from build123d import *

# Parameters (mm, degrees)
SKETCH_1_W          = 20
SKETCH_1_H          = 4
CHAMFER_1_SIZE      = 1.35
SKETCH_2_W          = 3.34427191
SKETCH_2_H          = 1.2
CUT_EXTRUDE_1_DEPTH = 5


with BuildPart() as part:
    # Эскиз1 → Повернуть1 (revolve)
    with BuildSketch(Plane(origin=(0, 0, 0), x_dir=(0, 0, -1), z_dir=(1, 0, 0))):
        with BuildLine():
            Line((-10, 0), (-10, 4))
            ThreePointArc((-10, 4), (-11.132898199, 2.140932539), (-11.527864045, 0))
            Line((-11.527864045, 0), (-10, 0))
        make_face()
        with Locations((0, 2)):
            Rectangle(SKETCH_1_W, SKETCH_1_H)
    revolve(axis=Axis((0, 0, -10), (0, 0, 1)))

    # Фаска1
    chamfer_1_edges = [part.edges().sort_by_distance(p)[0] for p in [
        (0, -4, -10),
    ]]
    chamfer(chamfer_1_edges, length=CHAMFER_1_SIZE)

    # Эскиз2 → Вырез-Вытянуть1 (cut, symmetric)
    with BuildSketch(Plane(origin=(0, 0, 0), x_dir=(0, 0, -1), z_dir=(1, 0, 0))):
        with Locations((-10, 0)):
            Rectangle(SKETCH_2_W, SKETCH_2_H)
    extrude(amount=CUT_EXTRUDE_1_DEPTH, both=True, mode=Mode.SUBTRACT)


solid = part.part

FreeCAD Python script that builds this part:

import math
import FreeCAD as App
import Part
import Sketcher
from FreeCAD import Vector


def edges_at(feature, points):
    """Names of the edges that pass closest to the given points."""
    edges = feature.Shape.Edges
    near = lambda p: min(range(len(edges)), key=lambda i: edges[i].distToShape(Part.Vertex(*p))[0])
    return sorted({f"Edge{near(p) + 1}" for p in points})

doc = App.newDocument("Part")
params = doc.addObject("Spreadsheet::Sheet", "Params")
for row, (alias, value) in enumerate([
    ("sketch1_radius", "6 mm"),
    ("sketch1_width", "4 mm"),
    ("sketch1_height", "20 mm"),
    ("revolution_angle", "360 deg"),
    ("chamfer_size", "1.35 mm"),
    ("sketch2_width", "1.2 mm"),
    ("pocket1_length", "10 mm"),
], start=1):
    params.set(f"A{row}", alias)
    params.set(f"B{row}", "=" + value)
    params.setAlias(f"B{row}", alias)

body = doc.addObject("PartDesign::Body", "Body")

# Sketch on YZ plane
sketch1 = body.newObject("Sketcher::SketchObject", "Sketch")
sketch1.AttachmentSupport = (doc.getObject("YZ_Plane"), [""])
sketch1.MapMode = "FlatFace"
sketch1.addGeometry([
    Part.ArcOfCircle(Part.Circle(Vector(0, 5.5, 0), Vector(0, 0, 1), 6), math.radians(48), math.radians(90)),
    Part.LineSegment(Vector(0, 11.5, 0), Vector(0, -10, 0)),
    Part.LineSegment(Vector(0, -10, 0), Vector(4, -10, 0)),
    Part.LineSegment(Vector(4, -10, 0), Vector(4, 10, 0)),
], False)
sketch1.addConstraint([
    Sketcher.Constraint("Coincident", 0, 2, 1, 1),
    Sketcher.Constraint("Coincident", 1, 2, 2, 1),
    Sketcher.Constraint("Coincident", 2, 2, 3, 1),
    Sketcher.Constraint("Coincident", 3, 2, 0, 1),
    Sketcher.Constraint("Vertical", 1),
    Sketcher.Constraint("Horizontal", 2),
    Sketcher.Constraint("Vertical", 3),
    Sketcher.Constraint("PointOnObject", 0, 3, -2),
    Sketcher.Constraint("PointOnObject", 0, 2, -2),
    Sketcher.Constraint("Radius", 0, 6.0),
    Sketcher.Constraint("DistanceX", 2, 1, 2, 2, 4.0),
    Sketcher.Constraint("DistanceY", 3, 1, 3, 2, 20.0),
    Sketcher.Constraint("DistanceY", 1, 2, -1, 1, 10.0),
])
sketch1.setExpression("Constraints[9]", "Params.sketch1_radius")
sketch1.setExpression("Constraints[10]", "Params.sketch1_width")
sketch1.setExpression("Constraints[11]", "Params.sketch1_height")
revolution = body.newObject("PartDesign::Revolution", "Revolution")
revolution.Profile = sketch1
revolution.ReferenceAxis = (sketch1, ["V_Axis"])
revolution.setExpression("Angle", "Params.revolution_angle")
doc.recompute()

chamfer = body.newObject("PartDesign::Chamfer", "Chamfer")
chamfer.Base = (revolution, edges_at(revolution, [(0, -4, -10)]))
chamfer.setExpression("Size", "Params.chamfer_size")

# Sketch on YZ plane
sketch2 = body.newObject("Sketcher::SketchObject", "Sketch001")
sketch2.AttachmentSupport = (doc.getObject("YZ_Plane"), [""])
sketch2.MapMode = "FlatFace"
sketch2.addGeometry([
    Part.LineSegment(Vector(0.6, 11.7, 0), Vector(-0.6, 11.7, 0)),
    Part.LineSegment(Vector(-0.6, 11.7, 0), Vector(-0.6, 8.3, 0)),
    Part.LineSegment(Vector(-0.6, 8.3, 0), Vector(0.6, 8.3, 0)),
    Part.LineSegment(Vector(0.6, 8.3, 0), Vector(0.6, 11.7, 0)),
], False)
sketch2.addConstraint([
    Sketcher.Constraint("Coincident", 0, 2, 1, 1),
    Sketcher.Constraint("Coincident", 1, 2, 2, 1),
    Sketcher.Constraint("Coincident", 2, 2, 3, 1),
    Sketcher.Constraint("Coincident", 3, 2, 0, 1),
    Sketcher.Constraint("Horizontal", 0),
    Sketcher.Constraint("Vertical", 1),
    Sketcher.Constraint("Horizontal", 2),
    Sketcher.Constraint("Vertical", 3),
    Sketcher.Constraint("DistanceX", 0, 2, 0, 1, 1.2),
    Sketcher.Constraint("DistanceX", 0, 2, -1, 1, 0.6),
    Sketcher.Constraint("DistanceY", 1, 2, 1, 1, 3.344272),
    Sketcher.Constraint("DistanceY", -1, 1, 0, 2, 11.672136),
])
sketch2.setExpression("Constraints[8]", "Params.sketch2_width")
pocket1 = body.newObject("PartDesign::Pocket", "Pocket")
pocket1.Profile = sketch2
pocket1.setExpression("Length", "Params.pocket1_length")
pocket1.Midplane = True

doc.recompute()
